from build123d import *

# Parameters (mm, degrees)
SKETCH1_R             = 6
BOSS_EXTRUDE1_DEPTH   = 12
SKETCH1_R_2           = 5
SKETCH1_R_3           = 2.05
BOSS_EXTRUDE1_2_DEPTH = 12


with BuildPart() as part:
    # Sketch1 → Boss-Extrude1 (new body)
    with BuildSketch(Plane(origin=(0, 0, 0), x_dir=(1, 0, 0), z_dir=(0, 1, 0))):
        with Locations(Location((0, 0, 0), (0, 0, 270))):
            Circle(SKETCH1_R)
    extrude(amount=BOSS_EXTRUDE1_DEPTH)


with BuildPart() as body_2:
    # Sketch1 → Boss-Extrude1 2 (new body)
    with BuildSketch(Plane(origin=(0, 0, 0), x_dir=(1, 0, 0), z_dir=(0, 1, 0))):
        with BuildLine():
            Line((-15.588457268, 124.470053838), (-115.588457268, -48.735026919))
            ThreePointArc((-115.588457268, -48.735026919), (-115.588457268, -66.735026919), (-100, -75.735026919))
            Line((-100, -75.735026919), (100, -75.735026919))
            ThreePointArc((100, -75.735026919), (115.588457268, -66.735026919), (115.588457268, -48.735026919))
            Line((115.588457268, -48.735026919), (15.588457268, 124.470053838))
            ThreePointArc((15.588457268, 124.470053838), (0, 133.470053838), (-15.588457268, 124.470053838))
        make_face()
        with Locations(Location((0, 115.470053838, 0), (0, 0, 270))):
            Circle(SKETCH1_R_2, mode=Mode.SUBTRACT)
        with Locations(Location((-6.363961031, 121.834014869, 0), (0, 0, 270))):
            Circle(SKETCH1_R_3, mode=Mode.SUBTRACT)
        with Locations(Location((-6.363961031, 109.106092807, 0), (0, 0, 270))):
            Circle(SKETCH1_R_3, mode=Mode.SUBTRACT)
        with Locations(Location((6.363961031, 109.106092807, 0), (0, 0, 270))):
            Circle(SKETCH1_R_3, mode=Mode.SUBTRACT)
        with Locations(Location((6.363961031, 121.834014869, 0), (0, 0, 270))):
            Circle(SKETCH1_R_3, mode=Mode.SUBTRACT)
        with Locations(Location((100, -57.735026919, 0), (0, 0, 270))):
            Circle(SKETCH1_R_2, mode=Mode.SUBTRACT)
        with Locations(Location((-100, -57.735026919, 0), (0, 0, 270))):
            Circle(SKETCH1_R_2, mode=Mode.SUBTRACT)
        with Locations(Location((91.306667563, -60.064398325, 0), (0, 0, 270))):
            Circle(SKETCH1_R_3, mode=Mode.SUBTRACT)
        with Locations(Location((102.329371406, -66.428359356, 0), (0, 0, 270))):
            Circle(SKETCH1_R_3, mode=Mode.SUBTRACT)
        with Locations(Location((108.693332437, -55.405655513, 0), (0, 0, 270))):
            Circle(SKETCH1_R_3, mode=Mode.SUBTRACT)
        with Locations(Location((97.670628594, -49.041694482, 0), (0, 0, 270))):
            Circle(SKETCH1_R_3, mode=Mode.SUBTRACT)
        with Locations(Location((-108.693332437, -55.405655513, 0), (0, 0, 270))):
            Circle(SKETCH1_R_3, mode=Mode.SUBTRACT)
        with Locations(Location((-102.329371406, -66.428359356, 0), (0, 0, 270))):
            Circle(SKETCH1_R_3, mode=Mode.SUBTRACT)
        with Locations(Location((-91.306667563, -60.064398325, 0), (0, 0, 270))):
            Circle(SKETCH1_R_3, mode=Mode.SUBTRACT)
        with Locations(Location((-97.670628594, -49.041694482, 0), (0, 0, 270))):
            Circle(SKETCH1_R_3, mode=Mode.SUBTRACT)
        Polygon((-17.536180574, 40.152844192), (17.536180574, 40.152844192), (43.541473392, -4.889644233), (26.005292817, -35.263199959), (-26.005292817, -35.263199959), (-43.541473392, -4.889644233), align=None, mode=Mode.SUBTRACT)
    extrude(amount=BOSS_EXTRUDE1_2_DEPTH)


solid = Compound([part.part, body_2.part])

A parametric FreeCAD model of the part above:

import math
import FreeCAD as App
import Part
import Sketcher

V = App.Vector
Q = App.Units.Quantity


def add_polygon(sketch, points):
    """Adds a closed chain of lines whose ends are joined by coincident constraints."""
    first, n = sketch.GeometryCount, len(points)
    for a, b in zip(points, points[1:] + points[:1]):
        sketch.addGeometry(Part.LineSegment(App.Vector(*a, 0), App.Vector(*b, 0)), False)
    for i in range(n):
        sketch.addConstraint(Sketcher.Constraint("Coincident", first + i, 2, first + (i + 1) % n, 1))

doc = App.newDocument("Part")
body = doc.addObject("PartDesign::Body", "Body")

sketch1 = body.newObject("Sketcher::SketchObject", "Sketch")
sketch1.AttachmentSupport = (doc.getObject("XZ_Plane"), [""])
sketch1.MapMode = "FlatFace"
sketch1.addGeometry(Part.Circle(V(0, 0, 0), V(0, 0, 1), 6), False)
sketch1.addConstraint([
    Sketcher.Constraint("Coincident", 0, 3, -1, 1),
    Sketcher.Constraint("Diameter", 0, Q("12 mm")),
])
pad1 = body.newObject("PartDesign::Pad", "Pad")
pad1.Profile = sketch1
pad1.Length = 12
pad1.Reversed = True
body2 = doc.addObject("PartDesign::Body", "Body001")

sketch2 = body2.newObject("Sketcher::SketchObject", "Sketch001")
sketch2.AttachmentSupport = (doc.getObject("XZ_Plane001"), [""])
sketch2.MapMode = "FlatFace"
sketch2.addGeometry(Part.LineSegment(V(-15.6, -124.5, 0), V(-115.6, 48.7, 0)), False)
sketch2.addGeometry(Part.ArcOfCircle(Part.Circle(V(-100, 57.7, 0), V(0, 0, 1), 18), math.radians(90), math.radians(210)), False)
sketch2.addGeometry(Part.LineSegment(V(-100, 75.7, 0), V(100, 75.7, 0)), False)
sketch2.addGeometry(Part.ArcOfCircle(Part.Circle(V(100, 57.7, 0), V(0, 0, 1), 18), math.radians(-30), math.radians(90)), False)
sketch2.addGeometry(Part.LineSegment(V(115.6, 48.7, 0), V(15.6, -124.5, 0)), False)
sketch2.addGeometry(Part.ArcOfCircle(Part.Circle(V(0, -115.5, 0), V(0, 0, 1), 18), math.radians(-150), math.radians(-30)), False)
sketch2.addGeometry(Part.Circle(V(-102.3, 66.4, 0), V(0, 0, 1), 2), False)
sketch2.addGeometry(Part.Circle(V(-100, 57.7, 0), V(0, 0, 1), 5), False)
sketch2.addGeometry(Part.Circle(V(-91.3, 60.1, 0), V(0, 0, 1), 2), False)
sketch2.addGeometry(Part.Circle(V(-108.7, 55.4, 0), V(0, 0, 1), 2), False)
sketch2.addGeometry(Part.Circle(V(-97.7, 49, 0), V(0, 0, 1), 2), False)
sketch2.addGeometry(Part.Circle(V(91.3, 60.1, 0), V(0, 0, 1), 2), False)
sketch2.addGeometry(Part.Circle(V(102.3, 66.4, 0), V(0, 0, 1), 2), False)
sketch2.addGeometry(Part.Circle(V(100, 57.7, 0), V(0, 0, 1), 5), False)
sketch2.addGeometry(Part.Circle(V(108.7, 55.4, 0), V(0, 0, 1), 2), False)
sketch2.addGeometry(Part.Circle(V(97.7, 49, 0), V(0, 0, 1), 2), False)
add_polygon(sketch2, [(-43.5, 4.9), (-17.5, -40.2), (17.5, -40.2), (43.5, 4.9), (26, 35.3), (-26, 35.3)])
sketch2.addGeometry(Part.Circle(V(-6.4, -109.1, 0), V(0, 0, 1), 2), False)
sketch2.addGeometry(Part.Circle(V(-6.4, -121.8, 0), V(0, 0, 1), 2), False)
sketch2.addGeometry(Part.Circle(V(6.4, -109.1, 0), V(0, 0, 1), 2), False)
sketch2.addGeometry(Part.Circle(V(0, -115.5, 0), V(0, 0, 1), 5), False)
sketch2.addGeometry(Part.Circle(V(6.4, -121.8, 0), V(0, 0, 1), 2), False)
sketch2.addConstraint([
    Sketcher.Constraint("Tangent", 0, 2, 1, 2),
    Sketcher.Constraint("Tangent", 1, 1, 2, 1),
    Sketcher.Constraint("Tangent", 2, 2, 3, 2),
    Sketcher.Constraint("Tangent", 3, 1, 4, 1),
    Sketcher.Constraint("Tangent", 4, 2, 5, 2),
    Sketcher.Constraint("Tangent", 5, 1, 0, 1),
    Sketcher.Constraint("Horizontal", 2),
    Sketcher.Constraint("Horizontal", 17),
    Sketcher.Constraint("Horizontal", 20),
    Sketcher.Constraint("Coincident", 7, 3, 1, 3),
    Sketcher.Constraint("Coincident", 13, 3, 3, 3),
    Sketcher.Constraint("Coincident", 25, 3, 5, 3),
    Sketcher.Constraint("Equal", 1, 3),
    Sketcher.Constraint("Equal", 3, 5),
    Sketcher.Constraint("Equal", 6, 8),
    Sketcher.Constraint("Equal", 8, 9),
    Sketcher.Constraint("Equal", 9, 10),
    Sketcher.Constraint("Equal", 10, 11),
    Sketcher.Constraint("Equal", 11, 12),
    Sketcher.Constraint("Equal", 7, 13),
    Sketcher.Constraint("Equal", 12, 14),
    Sketcher.Constraint("Equal", 14, 15),
    Sketcher.Constraint("Equal", 15, 22),
    Sketcher.Constraint("Equal", 22, 23),
    Sketcher.Constraint("Equal", 23, 24),
    Sketcher.Constraint("Equal", 13, 25),
    Sketcher.Constraint("Equal", 24, 26),
    Sketcher.Constraint("Symmetric", 8, 3, 11, 3, -2),
    Sketcher.Constraint("Symmetric", 6, 3, 12, 3, -2),
    Sketcher.Constraint("Symmetric", 9, 3, 14, 3, -2),
    Sketcher.Constraint("Symmetric", 10, 3, 15, 3, -2),
    Sketcher.Constraint("Symmetric", 22, 3, 24, 3, -2),
    Sketcher.Constraint("Symmetric", 23, 3, 26, 3, -2),
    Sketcher.Constraint("Symmetric", 0, 2, 3, 1, -2),
    Sketcher.Constraint("Symmetric", 18, 2, 21, 2, -2),
    Sketcher.Constraint("Parallel", 0, 16),
    Sketcher.Constraint("Parallel", 4, 18),
    Sketcher.Constraint("Parallel", 16, 19),
    Sketcher.Constraint("Parallel", 18, 21),
    Sketcher.Constraint("Vertical", 22, 3, 23, 3),
    Sketcher.Constraint("Diameter", 7, Q("10 mm")),
    Sketcher.Constraint("Radius", 1, Q("18 mm")),
    Sketcher.Constraint("Diameter", 6, Q("4.1 mm")),
    Sketcher.Constraint("DistanceX", 2, 1, 2, 2, Q("200 mm")),
    Sketcher.Constraint("Angle", 0, Q("120 deg")),
    Sketcher.Constraint("DistanceX", 10, 3, 12, 3, Q("200 mm")),
    Sketcher.Constraint("DistanceX", 8, 3, 14, 3, Q("200 mm")),
    Sketcher.Constraint("DistanceX", 17, 1, 17, 2, Q("35.072361 mm")),
    Sketcher.Constraint("DistanceY", -1, 1, 8, 3, Q("60.064398 mm")),
    Sketcher.Constraint("DistanceY", -1, 1, 19, 2, Q("35.2632 mm")),
    Sketcher.Constraint("Distance", 19, Q("35.072361 mm")),
    Sketcher.Constraint("DistanceX", 20, 2, 20, 1, Q("52.010586 mm")),
    Sketcher.Constraint("DistanceX", 6, 3, -1, 1, Q("102.329371 mm")),
    Sketcher.Constraint("DistanceY", -1, 1, 6, 3, Q("66.428359 mm")),
    Sketcher.Constraint("DistanceX", 22, 3, -1, 1, Q("6.363961 mm")),
    Sketcher.Constraint("DistanceY", 1, 3, 8, 3, Q("2.329371 mm")),
    Sketcher.Constraint("DistanceY", 9, 3, 1, 3, Q("2.329371 mm")),
    Sketcher.Constraint("DistanceX", 9, 3, 6, 3, Q("6.363961 mm")),
    Sketcher.Constraint("DistanceY", 10, 3, 9, 3, Q("6.363961 mm")),
    Sketcher.Constraint("DistanceY", 5, 3, 22, 3, Q("6.363961 mm")),
    Sketcher.Constraint("DistanceY", 23, 3, 5, 3, Q("6.363961 mm")),
])
pad2 = body2.newObject("PartDesign::Pad", "Pad001")
pad2.Profile = sketch2
pad2.Length = 12
pad2.Reversed = True

doc.recompute()
